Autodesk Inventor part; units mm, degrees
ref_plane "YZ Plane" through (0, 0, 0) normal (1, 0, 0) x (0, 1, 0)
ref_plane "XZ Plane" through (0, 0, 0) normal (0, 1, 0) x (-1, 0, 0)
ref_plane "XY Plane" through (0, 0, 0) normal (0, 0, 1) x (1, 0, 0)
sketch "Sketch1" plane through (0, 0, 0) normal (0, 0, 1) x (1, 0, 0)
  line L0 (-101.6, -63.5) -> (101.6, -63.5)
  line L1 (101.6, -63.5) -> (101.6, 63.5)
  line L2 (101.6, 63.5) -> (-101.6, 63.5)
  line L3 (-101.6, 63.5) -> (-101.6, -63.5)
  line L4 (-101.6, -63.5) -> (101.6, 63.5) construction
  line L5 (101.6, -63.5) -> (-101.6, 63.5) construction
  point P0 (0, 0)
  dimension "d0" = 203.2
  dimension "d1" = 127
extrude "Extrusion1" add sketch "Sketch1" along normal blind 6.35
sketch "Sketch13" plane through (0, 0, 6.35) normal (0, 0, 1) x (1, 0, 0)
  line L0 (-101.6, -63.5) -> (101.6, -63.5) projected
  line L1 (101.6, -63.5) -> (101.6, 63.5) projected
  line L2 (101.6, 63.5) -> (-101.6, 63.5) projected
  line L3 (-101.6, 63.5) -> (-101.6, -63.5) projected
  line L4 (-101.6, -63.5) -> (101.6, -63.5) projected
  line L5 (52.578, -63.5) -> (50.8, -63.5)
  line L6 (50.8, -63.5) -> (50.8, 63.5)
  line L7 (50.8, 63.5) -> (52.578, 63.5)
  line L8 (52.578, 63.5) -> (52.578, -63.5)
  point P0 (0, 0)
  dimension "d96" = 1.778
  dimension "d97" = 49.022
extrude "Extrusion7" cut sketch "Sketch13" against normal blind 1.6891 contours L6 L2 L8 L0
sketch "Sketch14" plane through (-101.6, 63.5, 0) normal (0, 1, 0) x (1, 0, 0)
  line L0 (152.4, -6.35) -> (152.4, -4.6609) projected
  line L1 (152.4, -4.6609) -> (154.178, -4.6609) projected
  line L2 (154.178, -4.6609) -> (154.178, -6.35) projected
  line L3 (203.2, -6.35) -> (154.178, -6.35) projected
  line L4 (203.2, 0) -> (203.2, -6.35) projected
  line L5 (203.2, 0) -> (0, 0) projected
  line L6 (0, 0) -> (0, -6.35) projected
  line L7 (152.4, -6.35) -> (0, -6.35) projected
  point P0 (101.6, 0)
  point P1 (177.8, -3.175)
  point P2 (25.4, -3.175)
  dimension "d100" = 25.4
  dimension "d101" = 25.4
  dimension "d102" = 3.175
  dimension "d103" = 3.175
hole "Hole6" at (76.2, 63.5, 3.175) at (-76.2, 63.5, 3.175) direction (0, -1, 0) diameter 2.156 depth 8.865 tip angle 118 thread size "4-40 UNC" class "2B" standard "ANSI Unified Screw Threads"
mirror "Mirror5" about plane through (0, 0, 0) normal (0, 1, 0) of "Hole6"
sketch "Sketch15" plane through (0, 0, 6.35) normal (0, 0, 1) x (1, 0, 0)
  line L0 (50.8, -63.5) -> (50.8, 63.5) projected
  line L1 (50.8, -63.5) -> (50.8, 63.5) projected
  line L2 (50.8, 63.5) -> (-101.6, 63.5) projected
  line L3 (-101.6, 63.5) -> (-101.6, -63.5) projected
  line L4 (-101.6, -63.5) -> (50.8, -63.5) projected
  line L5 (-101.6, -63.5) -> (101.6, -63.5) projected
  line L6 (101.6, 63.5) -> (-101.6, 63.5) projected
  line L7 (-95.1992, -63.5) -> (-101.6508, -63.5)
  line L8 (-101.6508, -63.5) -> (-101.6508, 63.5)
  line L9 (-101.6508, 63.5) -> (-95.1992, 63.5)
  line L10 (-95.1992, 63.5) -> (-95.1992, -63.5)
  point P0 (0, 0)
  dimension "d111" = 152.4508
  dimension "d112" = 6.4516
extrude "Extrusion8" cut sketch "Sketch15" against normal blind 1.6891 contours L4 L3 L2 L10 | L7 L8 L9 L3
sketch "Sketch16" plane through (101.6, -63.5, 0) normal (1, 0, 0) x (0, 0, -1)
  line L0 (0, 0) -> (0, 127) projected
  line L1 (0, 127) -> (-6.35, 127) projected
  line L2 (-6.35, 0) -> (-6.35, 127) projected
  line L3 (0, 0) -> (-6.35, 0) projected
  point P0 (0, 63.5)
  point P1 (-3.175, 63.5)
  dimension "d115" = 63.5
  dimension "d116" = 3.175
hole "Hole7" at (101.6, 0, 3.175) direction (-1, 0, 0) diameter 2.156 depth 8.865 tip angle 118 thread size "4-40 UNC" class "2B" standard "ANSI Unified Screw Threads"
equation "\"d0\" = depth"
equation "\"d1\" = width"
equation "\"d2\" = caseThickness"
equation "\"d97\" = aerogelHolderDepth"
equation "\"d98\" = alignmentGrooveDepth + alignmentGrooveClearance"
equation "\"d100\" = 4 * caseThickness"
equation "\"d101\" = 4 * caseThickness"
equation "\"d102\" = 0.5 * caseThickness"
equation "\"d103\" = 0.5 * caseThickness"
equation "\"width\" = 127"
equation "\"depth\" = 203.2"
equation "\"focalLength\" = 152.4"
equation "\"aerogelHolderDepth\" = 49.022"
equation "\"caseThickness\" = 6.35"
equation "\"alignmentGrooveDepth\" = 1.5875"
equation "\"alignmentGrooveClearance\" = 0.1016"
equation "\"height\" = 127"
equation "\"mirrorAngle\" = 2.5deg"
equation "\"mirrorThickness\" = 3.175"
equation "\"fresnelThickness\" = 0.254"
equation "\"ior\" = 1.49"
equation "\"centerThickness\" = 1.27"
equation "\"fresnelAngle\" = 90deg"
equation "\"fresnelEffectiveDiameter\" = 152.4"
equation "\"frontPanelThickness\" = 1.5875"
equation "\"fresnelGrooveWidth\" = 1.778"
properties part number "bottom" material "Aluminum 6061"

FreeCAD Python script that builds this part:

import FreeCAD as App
import Part
import Sketcher
Q = App.Units.Quantity

doc = App.newDocument("Part")
body = doc.addObject("PartDesign::Body", "Body")

sketch1 = body.newObject("Sketcher::SketchObject", "Sketch")
sketch1.AttachmentSupport = (doc.getObject("XY_Plane"), [""])
sketch1.MapMode = "FlatFace"
sketch1.addGeometry(Part.LineSegment(App.Vector(-102, 64, 0), App.Vector(-102, -64, 0)), False)
sketch1.addGeometry(Part.LineSegment(App.Vector(-102, -64, 0), App.Vector(102, -64, 0)), False)
sketch1.addGeometry(Part.LineSegment(App.Vector(102, -64, 0), App.Vector(102, 64, 0)), False)
sketch1.addGeometry(Part.LineSegment(App.Vector(102, 64, 0), App.Vector(-102, 64, 0)), False)
sketch1.addConstraint(Sketcher.Constraint("Coincident", 0, 2, 1, 1))
sketch1.addConstraint(Sketcher.Constraint("Coincident", 1, 2, 2, 1))
sketch1.addConstraint(Sketcher.Constraint("Coincident", 2, 2, 3, 1))
sketch1.addConstraint(Sketcher.Constraint("Coincident", 3, 2, 0, 1))
sketch1.addConstraint(Sketcher.Constraint("Vertical", 0))
sketch1.addConstraint(Sketcher.Constraint("Horizontal", 1))
sketch1.addConstraint(Sketcher.Constraint("Vertical", 2))
sketch1.addConstraint(Sketcher.Constraint("Horizontal", 3))
sketch1.addConstraint(Sketcher.Constraint("Symmetric", 0, 2, 2, 2, -1, 1))
sketch1.addConstraint(Sketcher.Constraint("DistanceX", 1, 1, 1, 2, Q("8 in")))
sketch1.addConstraint(Sketcher.Constraint("DistanceY", 0, 2, 0, 1, Q("5 in")))
pad1 = body.newObject("PartDesign::Pad", "Pad")
pad1.Profile = sketch1
pad1.Length = Q("0.25 in")

sketch2 = body.newObject("Sketcher::SketchObject", "Sketch001")
sketch2.AttachmentSupport = (doc.getObject("XY_Plane"), [""])
sketch2.MapMode = "FlatFace"
sketch2.AttachmentOffset = App.Placement(App.Vector(0, 0, 0.25 * 25.4), App.Rotation())
sketch2.addGeometry(Part.LineSegment(App.Vector(50.8, 63.5, 0), App.Vector(50.8, -63.5, 0)), False)
sketch2.addGeometry(Part.LineSegment(App.Vector(50.8, -63.5, 0), App.Vector(52.6, -63.5, 0)), False)
sketch2.addGeometry(Part.LineSegment(App.Vector(52.6, -63.5, 0), App.Vector(52.6, 63.5, 0)), False)
sketch2.addGeometry(Part.LineSegment(App.Vector(52.6, 63.5, 0), App.Vector(50.8, 63.5, 0)), False)
sketch2.addConstraint(Sketcher.Constraint("Coincident", 0, 2, 1, 1))
sketch2.addConstraint(Sketcher.Constraint("Coincident", 1, 2, 2, 1))
sketch2.addConstraint(Sketcher.Constraint("Coincident", 2, 2, 3, 1))
sketch2.addConstraint(Sketcher.Constraint("Coincident", 3, 2, 0, 1))
sketch2.addConstraint(Sketcher.Constraint("Vertical", 0))
sketch2.addConstraint(Sketcher.Constraint("Horizontal", 1))
sketch2.addConstraint(Sketcher.Constraint("Vertical", 2))
sketch2.addConstraint(Sketcher.Constraint("Horizontal", 3))
sketch2.addConstraint(Sketcher.Constraint("DistanceX", 1, 1, 1, 2, Q("0.07 in")))
sketch2.addConstraint(Sketcher.Constraint("DistanceY", 0, 2, 0, 1, Q("5 in")))
sketch2.addConstraint(Sketcher.Constraint("DistanceX", -1, 1, 0, 2, Q("2 in")))
sketch2.addConstraint(Sketcher.Constraint("DistanceY", 0, 2, -1, 1, Q("2.5 in")))
pocket1 = body.newObject("PartDesign::Pocket", "Pocket")
pocket1.Profile = sketch2
pocket1.Length = Q("0.0665 in")

sketch3 = body.newObject("Sketcher::SketchObject", "Sketch002")
sketch3.AttachmentSupport = (doc.getObject("XZ_Plane"), [""])
sketch3.MapMode = "FlatFace"
sketch3.AttachmentOffset = App.Placement(App.Vector(0, 0, -2.5 * 25.4), App.Rotation())
sketch3.addGeometry(Part.Circle(App.Vector(76.2, 3.2, 0), App.Vector(0, 0, 1), 1.1), False)
sketch3.addGeometry(Part.Circle(App.Vector(-76.2, 3.2, 0), App.Vector(0, 0, 1), 1.1), False)
sketch3.addConstraint(Sketcher.Constraint("Equal", 0, 1))
sketch3.addConstraint(Sketcher.Constraint("Symmetric", 0, 3, 1, 3, -2))
sketch3.addConstraint(Sketcher.Constraint("DistanceX", -1, 1, 0, 3, Q("3 in")))
sketch3.addConstraint(Sketcher.Constraint("Diameter", 0, Q("2.156 mm")))
sketch3.addConstraint(Sketcher.Constraint("DistanceY", -1, 1, 0, 3, Q("0.125 in")))
doc.recompute()
hole = body.newObject("PartDesign::Hole", "Hole")
hole.Profile = sketch3
hole.ThreadType = "None"
hole.Diameter = 2.156
hole.DepthType = "Dimension"
hole.Depth = 8.865
hole.DrillPoint = "Angled"
hole.DrillPointAngle = 118
hole.Reversed = True
doc.recompute()

mirrored = body.newObject("PartDesign::Mirrored", "Mirrored")
mirrored.Originals = [hole]
mirrored.MirrorPlane = (doc.getObject("XZ_Plane"), [""])
body.Tip = mirrored

sketch4 = body.newObject("Sketcher::SketchObject", "Sketch003")
sketch4.AttachmentSupport = (doc.getObject("XY_Plane"), [""])
sketch4.MapMode = "FlatFace"
sketch4.AttachmentOffset = App.Placement(App.Vector(0, 0, 0.25 * 25.4), App.Rotation())
sketch4.addGeometry(Part.LineSegment(App.Vector(-95, -64, 0), App.Vector(-95, 64, 0)), False)
sketch4.addGeometry(Part.LineSegment(App.Vector(-95, 64, 0), App.Vector(-102, 64, 0)), False)
sketch4.addGeometry(Part.LineSegment(App.Vector(-102, 64, 0), App.Vector(-102, -64, 0)), False)
sketch4.addGeometry(Part.LineSegment(App.Vector(-102, -64, 0), App.Vector(-95, -64, 0)), False)
sketch4.addConstraint(Sketcher.Constraint("Coincident", 0, 2, 1, 1))
sketch4.addConstraint(Sketcher.Constraint("Coincident", 1, 2, 2, 1))
sketch4.addConstraint(Sketcher.Constraint("Coincident", 2, 2, 3, 1))
sketch4.addConstraint(Sketcher.Constraint("Coincident", 3, 2, 0, 1))
sketch4.addConstraint(Sketcher.Constraint("Vertical", 0))
sketch4.addConstraint(Sketcher.Constraint("Horizontal", 1))
sketch4.addConstraint(Sketcher.Constraint("Vertical", 2))
sketch4.addConstraint(Sketcher.Constraint("Horizontal", 3))
sketch4.addConstraint(Sketcher.Constraint("DistanceX", 1, 2, 1, 1, Q("0.254 in")))
sketch4.addConstraint(Sketcher.Constraint("DistanceY", 0, 1, 0, 2, Q("5 in")))
sketch4.addConstraint(Sketcher.Constraint("DistanceY", -1, 1, 0, 2, Q("2.5 in")))
sketch4.addConstraint(Sketcher.Constraint("DistanceX", 0, 2, -1, 1, Q("3.748 in")))
pocket2 = body.newObject("PartDesign::Pocket", "Pocket001")
pocket2.Profile = sketch4
pocket2.Length = Q("0.0665 in")

sketch5 = body.newObject("Sketcher::SketchObject", "Sketch004")
sketch5.AttachmentSupport = (doc.getObject("YZ_Plane"), [""])
sketch5.MapMode = "FlatFace"
sketch5.AttachmentOffset = App.Placement(App.Vector(0, 0, 4 * 25.4), App.Rotation())
sketch5.addGeometry(Part.Circle(App.Vector(0, 3.2, 0), App.Vector(0, 0, 1), 1.1), False)
sketch5.addConstraint(Sketcher.Constraint("PointOnObject", 0, 3, -2))
sketch5.addConstraint(Sketcher.Constraint("Diameter", 0, Q("2.156 mm")))
sketch5.addConstraint(Sketcher.Constraint("DistanceY", -1, 1, 0, 3, Q("0.125 in")))
doc.recompute()
hole2 = body.newObject("PartDesign::Hole", "Hole001")
hole2.Profile = sketch5
hole2.ThreadType = "None"
hole2.Diameter = 2.156
hole2.DepthType = "Dimension"
hole2.Depth = 8.865
hole2.DrillPoint = "Angled"
hole2.DrillPointAngle = 118

doc.recompute()
